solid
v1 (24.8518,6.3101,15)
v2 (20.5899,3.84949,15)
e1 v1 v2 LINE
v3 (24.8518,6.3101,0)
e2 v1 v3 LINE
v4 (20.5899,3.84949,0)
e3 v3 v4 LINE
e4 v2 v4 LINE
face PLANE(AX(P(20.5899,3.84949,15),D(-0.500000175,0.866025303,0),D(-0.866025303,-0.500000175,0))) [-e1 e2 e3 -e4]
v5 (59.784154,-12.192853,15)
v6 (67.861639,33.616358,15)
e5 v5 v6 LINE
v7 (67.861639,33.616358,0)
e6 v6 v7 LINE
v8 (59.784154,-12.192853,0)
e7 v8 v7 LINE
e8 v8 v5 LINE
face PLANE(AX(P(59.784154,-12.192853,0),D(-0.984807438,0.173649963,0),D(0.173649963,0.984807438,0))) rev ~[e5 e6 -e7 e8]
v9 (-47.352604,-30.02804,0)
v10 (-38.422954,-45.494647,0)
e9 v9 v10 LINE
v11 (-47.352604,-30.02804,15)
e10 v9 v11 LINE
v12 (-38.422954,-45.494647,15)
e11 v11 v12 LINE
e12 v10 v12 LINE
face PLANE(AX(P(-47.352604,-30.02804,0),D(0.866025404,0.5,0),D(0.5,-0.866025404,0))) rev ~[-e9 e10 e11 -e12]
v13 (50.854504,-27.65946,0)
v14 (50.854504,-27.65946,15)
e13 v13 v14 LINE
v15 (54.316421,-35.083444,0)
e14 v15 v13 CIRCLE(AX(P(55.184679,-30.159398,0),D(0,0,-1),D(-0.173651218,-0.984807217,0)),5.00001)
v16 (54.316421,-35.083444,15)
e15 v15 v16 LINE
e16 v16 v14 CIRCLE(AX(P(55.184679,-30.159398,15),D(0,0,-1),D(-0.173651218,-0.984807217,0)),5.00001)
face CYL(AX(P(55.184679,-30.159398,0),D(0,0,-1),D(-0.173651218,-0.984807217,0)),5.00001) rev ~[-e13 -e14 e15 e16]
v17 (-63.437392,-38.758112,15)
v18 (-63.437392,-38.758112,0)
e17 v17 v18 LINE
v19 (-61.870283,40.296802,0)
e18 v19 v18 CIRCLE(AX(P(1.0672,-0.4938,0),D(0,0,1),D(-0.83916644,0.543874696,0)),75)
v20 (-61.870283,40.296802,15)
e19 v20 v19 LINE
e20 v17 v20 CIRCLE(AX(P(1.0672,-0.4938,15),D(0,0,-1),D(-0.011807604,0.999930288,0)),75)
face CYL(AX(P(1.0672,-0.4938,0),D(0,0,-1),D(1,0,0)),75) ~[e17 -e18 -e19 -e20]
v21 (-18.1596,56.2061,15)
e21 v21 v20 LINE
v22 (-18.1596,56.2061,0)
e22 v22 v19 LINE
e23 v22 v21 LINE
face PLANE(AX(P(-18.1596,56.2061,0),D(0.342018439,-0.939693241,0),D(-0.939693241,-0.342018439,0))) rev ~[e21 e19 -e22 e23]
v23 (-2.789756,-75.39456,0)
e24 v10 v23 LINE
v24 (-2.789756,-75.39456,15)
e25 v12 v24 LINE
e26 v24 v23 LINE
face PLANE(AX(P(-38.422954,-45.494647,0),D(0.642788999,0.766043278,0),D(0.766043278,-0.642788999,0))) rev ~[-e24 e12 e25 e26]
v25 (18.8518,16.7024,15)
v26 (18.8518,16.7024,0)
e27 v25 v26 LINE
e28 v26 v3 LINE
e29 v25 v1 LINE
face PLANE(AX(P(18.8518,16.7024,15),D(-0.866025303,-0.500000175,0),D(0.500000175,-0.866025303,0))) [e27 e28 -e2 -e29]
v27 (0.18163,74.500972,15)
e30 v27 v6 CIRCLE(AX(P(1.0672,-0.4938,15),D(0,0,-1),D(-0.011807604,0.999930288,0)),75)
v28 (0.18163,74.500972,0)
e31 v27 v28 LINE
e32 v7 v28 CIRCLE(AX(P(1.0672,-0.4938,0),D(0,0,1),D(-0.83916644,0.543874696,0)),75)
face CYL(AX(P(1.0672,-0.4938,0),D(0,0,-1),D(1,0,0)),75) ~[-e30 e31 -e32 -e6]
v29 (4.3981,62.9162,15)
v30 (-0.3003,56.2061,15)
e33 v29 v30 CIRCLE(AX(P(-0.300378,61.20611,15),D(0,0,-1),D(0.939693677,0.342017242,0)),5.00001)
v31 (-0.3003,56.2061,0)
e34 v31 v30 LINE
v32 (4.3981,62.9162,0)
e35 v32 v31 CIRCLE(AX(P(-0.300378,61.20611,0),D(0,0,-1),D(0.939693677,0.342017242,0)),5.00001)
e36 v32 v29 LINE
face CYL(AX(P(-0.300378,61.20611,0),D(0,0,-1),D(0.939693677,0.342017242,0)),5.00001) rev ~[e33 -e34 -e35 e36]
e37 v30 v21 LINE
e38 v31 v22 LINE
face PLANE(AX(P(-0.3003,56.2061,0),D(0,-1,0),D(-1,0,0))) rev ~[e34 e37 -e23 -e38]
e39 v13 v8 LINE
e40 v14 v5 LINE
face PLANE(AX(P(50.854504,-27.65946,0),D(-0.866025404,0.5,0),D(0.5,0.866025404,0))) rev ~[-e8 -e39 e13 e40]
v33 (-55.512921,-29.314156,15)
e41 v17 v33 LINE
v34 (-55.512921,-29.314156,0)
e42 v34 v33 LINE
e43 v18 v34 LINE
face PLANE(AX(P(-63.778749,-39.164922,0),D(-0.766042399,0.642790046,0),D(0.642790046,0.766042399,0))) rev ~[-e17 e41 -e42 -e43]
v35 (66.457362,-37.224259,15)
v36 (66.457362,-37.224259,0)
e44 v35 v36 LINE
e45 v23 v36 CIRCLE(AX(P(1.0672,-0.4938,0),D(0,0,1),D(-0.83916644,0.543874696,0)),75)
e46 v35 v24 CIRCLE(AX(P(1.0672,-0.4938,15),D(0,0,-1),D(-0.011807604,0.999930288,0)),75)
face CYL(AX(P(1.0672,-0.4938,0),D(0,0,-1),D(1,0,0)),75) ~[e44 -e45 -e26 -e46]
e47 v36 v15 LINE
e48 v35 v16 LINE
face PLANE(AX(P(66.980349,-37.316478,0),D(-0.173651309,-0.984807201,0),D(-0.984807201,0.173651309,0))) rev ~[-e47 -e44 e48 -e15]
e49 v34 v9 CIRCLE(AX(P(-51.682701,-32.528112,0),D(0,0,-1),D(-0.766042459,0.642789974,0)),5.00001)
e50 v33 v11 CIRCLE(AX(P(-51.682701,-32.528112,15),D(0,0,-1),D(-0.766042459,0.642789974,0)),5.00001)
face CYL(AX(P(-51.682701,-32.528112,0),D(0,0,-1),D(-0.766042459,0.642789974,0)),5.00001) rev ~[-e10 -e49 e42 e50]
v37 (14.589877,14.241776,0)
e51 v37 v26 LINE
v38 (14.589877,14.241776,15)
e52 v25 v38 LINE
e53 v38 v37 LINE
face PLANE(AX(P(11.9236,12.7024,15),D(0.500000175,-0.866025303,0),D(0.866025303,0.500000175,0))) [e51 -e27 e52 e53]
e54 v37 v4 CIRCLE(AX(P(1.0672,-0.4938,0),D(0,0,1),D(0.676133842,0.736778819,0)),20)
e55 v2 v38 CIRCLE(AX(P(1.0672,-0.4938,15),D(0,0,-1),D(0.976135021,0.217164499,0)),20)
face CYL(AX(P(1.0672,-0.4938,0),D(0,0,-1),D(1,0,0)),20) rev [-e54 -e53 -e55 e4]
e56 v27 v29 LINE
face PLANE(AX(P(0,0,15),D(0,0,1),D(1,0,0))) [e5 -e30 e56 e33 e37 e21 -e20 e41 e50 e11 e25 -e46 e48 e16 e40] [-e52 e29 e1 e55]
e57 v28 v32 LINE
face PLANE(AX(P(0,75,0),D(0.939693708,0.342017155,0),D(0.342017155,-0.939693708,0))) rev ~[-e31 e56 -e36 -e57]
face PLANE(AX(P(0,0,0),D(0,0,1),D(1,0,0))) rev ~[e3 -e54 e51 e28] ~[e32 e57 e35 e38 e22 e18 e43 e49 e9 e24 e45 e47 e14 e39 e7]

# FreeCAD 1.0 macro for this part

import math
import FreeCAD as App
import Part
import Sketcher
Q = App.Units.Quantity

doc = App.newDocument("Part")
body = doc.addObject("PartDesign::Body", "Body")

# Sketch on XY plane
sketch1 = body.newObject("Sketcher::SketchObject", "Sketch")
sketch1.AttachmentSupport = (doc.getObject("XY_Plane"), [""])
sketch1.MapMode = "FlatFace"
sketch1.addGeometry(Part.Circle(App.Vector(1.0672, -0.4938, 0), App.Vector(0, 0, 1), 75), False)
sketch1.addGeometry(Part.Circle(App.Vector(1.0672, -0.4938, 0), App.Vector(0, 0, 1), 20), False)
sketch1.addConstraint(Sketcher.Constraint("Coincident", 1, 3, 0, 3))
sketch1.addConstraint(Sketcher.Constraint("Diameter", 0, Q("150 mm")))
sketch1.addConstraint(Sketcher.Constraint("Diameter", 1, Q("40 mm")))
sketch1.addConstraint(Sketcher.Constraint("DistanceX", -1, 1, 0, 3, Q("1.0672 mm")))
sketch1.addConstraint(Sketcher.Constraint("DistanceY", 0, 3, -1, 1, Q("0.4938 mm")))
pad1 = body.newObject("PartDesign::Pad", "Pad")
pad1.Profile = sketch1
pad1.Length = 15

# Sketch on XY plane
sketch2 = body.newObject("Sketcher::SketchObject", "Sketch001")
sketch2.AttachmentSupport = (doc.getObject("XY_Plane"), [""])
sketch2.MapMode = "FlatFace"
sketch2.addGeometry(Part.ArcOfCircle(Part.Circle(App.Vector(-27.2068, 48.9906, 0), App.Vector(0, 0, 1), 37.639004), math.radians(43.711024), math.radians(194.379822)), False)
sketch2.addGeometry(Part.LineSegment(App.Vector(0, 75, 0), App.Vector(4.3981, 62.9162, 0)), False)
sketch2.addGeometry(Part.ArcOfCircle(Part.Circle(App.Vector(-0.3003, 61.2061, 0), App.Vector(0, 0, 1), 4.99994), math.radians(-90), math.radians(20.00024)), False)
sketch2.addGeometry(Part.LineSegment(App.Vector(-0.3003, 56.2061, 0), App.Vector(-18.1596, 56.2061, 0)), False)
sketch2.addGeometry(Part.LineSegment(App.Vector(-18.1596, 56.2061, 0), App.Vector(-63.6666, 39.643, 0)), False)
sketch2.addConstraint(Sketcher.Constraint("Coincident", 0, 1, 1, 1))
sketch2.addConstraint(Sketcher.Constraint("Tangent", 1, 2, 2, 2))
sketch2.addConstraint(Sketcher.Constraint("Tangent", 2, 1, 3, 1))
sketch2.addConstraint(Sketcher.Constraint("Coincident", 3, 2, 4, 1))
sketch2.addConstraint(Sketcher.Constraint("Coincident", 4, 2, 0, 2))
sketch2.addConstraint(Sketcher.Constraint("Horizontal", 3))
sketch2.addConstraint(Sketcher.Constraint("PointOnObject", 0, 1, -2))
sketch2.addConstraint(Sketcher.Constraint("Perpendicular", 1, 4))
sketch2.addConstraint(Sketcher.Constraint("Radius", 2, Q("5 mm")))
sketch2.addConstraint(Sketcher.Constraint("Angle", 1, Q("-70.0002 deg")))
sketch2.addConstraint(Sketcher.Constraint("DistanceY", -1, 1, 0, 1, Q("75 mm")))
sketch2.addConstraint(Sketcher.Constraint("Radius", 0, Q("37.639 mm")))
sketch2.addConstraint(Sketcher.Constraint("DistanceX", 3, 2, 3, 1, Q("17.8593 mm")))
sketch2.addConstraint(Sketcher.Constraint("DistanceY", -1, 1, 2, 3, Q("61.206 mm")))
sketch2.addConstraint(Sketcher.Constraint("DistanceY", -1, 1, 4, 2, Q("39.643 mm")))
pocket1 = body.newObject("PartDesign::Pocket", "Pocket")
pocket1.Profile = sketch2
pocket1.Length = 15
pocket1.Reversed = True
doc.recompute()

datumline = body.newObject("PartDesign::Line", "DatumLine")
datumline.Placement = App.Placement(App.Vector(1.0672, -0.4938, 0), App.Rotation(App.Vector(0, 0, 1), App.Vector(0, 0, 1)))
polarpattern = body.newObject("PartDesign::PolarPattern", "PolarPattern")
polarpattern.Originals = [pocket1]
polarpattern.Axis = (datumline, [""])
polarpattern.Angle = 360
polarpattern.Occurrences = 3
body.Tip = polarpattern

# Sketch on XY plane
sketch3 = body.newObject("Sketcher::SketchObject", "Sketch002")
sketch3.AttachmentSupport = (doc.getObject("XY_Plane"), [""])
sketch3.MapMode = "FlatFace"
sketch3.AttachmentOffset = App.Placement(App.Vector(0, 0, 15), App.Rotation())
sketch3.addGeometry(Part.LineSegment(App.Vector(17.9236, 2.3101, 0), App.Vector(24.8518, 6.3101, 0)), False)
sketch3.addGeometry(Part.LineSegment(App.Vector(24.8518, 6.3101, 0), App.Vector(18.8518, 16.7024, 0)), False)
sketch3.addGeometry(Part.LineSegment(App.Vector(18.8518, 16.7024, 0), App.Vector(11.9236, 12.7024, 0)), False)
sketch3.addGeometry(Part.LineSegment(App.Vector(11.9236, 12.7024, 0), App.Vector(17.9236, 2.3101, 0)), False)
sketch3.addConstraint(Sketcher.Constraint("Coincident", 0, 2, 1, 1))
sketch3.addConstraint(Sketcher.Constraint("Coincident", 1, 2, 2, 1))
sketch3.addConstraint(Sketcher.Constraint("Coincident", 2, 2, 3, 1))
sketch3.addConstraint(Sketcher.Constraint("Coincident", 3, 2, 0, 1))
sketch3.addConstraint(Sketcher.Constraint("Perpendicular", 0, 1))
sketch3.addConstraint(Sketcher.Constraint("Perpendicular", 1, 2))
sketch3.addConstraint(Sketcher.Constraint("Perpendicular", 2, 3))
sketch3.addConstraint(Sketcher.Constraint("Distance", 0, Q("8 mm")))
sketch3.addConstraint(Sketcher.Constraint("Distance", 1, Q("12 mm")))
sketch3.addConstraint(Sketcher.Constraint("Angle", 0, Q("30 deg")))
sketch3.addConstraint(Sketcher.Constraint("DistanceY", -1, 1, 0, 2, Q("6.31 mm")))
sketch3.addConstraint(Sketcher.Constraint("DistanceX", -1, 1, 0, 2, Q("24.8518 mm")))
pocket2 = body.newObject("PartDesign::Pocket", "Pocket001")
pocket2.Profile = sketch3
pocket2.Type = "ThroughAll"

doc.recompute()
